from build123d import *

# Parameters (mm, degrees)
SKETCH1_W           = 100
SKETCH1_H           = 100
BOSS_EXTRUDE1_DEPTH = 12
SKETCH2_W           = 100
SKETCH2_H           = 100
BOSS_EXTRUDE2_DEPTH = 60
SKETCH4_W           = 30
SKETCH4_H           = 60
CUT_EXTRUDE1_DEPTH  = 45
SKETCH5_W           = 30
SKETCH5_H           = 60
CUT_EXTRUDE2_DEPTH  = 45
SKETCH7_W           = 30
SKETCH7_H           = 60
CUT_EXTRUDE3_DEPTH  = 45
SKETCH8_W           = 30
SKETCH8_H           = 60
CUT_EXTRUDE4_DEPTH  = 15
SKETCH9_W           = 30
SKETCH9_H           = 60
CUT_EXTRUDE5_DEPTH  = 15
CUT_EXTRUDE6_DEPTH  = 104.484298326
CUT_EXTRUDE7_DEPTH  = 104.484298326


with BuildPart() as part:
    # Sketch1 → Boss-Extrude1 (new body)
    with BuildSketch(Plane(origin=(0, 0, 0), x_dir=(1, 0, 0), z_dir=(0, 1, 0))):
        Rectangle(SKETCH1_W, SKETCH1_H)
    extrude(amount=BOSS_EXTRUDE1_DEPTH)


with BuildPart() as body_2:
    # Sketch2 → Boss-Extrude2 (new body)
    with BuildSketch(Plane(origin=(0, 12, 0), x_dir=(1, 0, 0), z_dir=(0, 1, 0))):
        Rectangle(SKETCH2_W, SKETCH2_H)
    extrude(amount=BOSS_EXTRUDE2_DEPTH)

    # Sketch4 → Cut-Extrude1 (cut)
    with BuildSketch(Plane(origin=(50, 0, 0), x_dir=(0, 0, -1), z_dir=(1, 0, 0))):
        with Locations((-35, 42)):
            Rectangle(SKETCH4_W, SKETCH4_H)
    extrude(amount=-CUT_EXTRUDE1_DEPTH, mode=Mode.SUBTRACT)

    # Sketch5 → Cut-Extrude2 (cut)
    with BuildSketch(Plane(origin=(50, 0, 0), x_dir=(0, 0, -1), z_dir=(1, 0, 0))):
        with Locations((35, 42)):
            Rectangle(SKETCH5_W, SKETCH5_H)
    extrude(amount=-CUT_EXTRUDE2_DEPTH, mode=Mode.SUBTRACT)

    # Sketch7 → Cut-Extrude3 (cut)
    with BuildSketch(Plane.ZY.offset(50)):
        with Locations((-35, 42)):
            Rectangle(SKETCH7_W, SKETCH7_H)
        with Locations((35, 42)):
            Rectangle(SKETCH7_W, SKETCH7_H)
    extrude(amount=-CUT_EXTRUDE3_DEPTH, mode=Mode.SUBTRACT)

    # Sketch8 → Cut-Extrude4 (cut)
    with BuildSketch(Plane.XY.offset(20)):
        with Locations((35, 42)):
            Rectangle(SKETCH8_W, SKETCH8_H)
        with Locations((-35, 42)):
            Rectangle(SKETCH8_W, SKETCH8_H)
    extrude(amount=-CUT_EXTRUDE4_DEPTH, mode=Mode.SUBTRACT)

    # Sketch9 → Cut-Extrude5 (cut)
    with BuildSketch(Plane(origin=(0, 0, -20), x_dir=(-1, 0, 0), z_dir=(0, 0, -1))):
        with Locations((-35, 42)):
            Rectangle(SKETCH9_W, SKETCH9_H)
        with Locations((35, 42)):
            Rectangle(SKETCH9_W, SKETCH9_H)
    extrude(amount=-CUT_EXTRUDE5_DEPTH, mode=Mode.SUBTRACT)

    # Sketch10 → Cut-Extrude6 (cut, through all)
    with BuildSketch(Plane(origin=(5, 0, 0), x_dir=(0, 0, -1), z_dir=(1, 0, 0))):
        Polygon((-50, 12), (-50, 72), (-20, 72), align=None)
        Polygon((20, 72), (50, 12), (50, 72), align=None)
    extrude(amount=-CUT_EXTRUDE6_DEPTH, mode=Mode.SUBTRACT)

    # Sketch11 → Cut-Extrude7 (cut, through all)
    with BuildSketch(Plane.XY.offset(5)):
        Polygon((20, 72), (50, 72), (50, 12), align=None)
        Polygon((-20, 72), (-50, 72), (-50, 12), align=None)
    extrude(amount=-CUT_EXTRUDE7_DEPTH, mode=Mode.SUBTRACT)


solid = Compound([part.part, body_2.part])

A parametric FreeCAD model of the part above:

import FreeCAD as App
import Part
import Sketcher
from FreeCAD import Vector
Q = App.Units.Quantity


def add_polygon(sketch, points):
    """Adds a closed chain of lines whose ends are joined by coincident constraints."""
    first, n = sketch.GeometryCount, len(points)
    for a, b in zip(points, points[1:] + points[:1]):
        sketch.addGeometry(Part.LineSegment(App.Vector(*a, 0), App.Vector(*b, 0)), False)
    for i in range(n):
        sketch.addConstraint(Sketcher.Constraint("Coincident", first + i, 2, first + (i + 1) % n, 1))

doc = App.newDocument("Part")
body = doc.addObject("PartDesign::Body", "Body")

sketch1 = doc.addObject("Sketcher::SketchObject", "Sketch")
body.addObject(sketch1)
sketch1.AttachmentSupport = (doc.XZ_Plane, [""])
sketch1.MapMode = "FlatFace"
add_polygon(sketch1, [(-50, -50), (-50, 50), (50, 50), (50, -50)])
sketch1.addConstraint(Sketcher.Constraint("Vertical", 0))
sketch1.addConstraint(Sketcher.Constraint("Horizontal", 1))
sketch1.addConstraint(Sketcher.Constraint("Vertical", 2))
sketch1.addConstraint(Sketcher.Constraint("Horizontal", 3))
sketch1.addConstraint(Sketcher.Constraint("Symmetric", 0, 2, 2, 2, -1, 1))
sketch1.addConstraint(Sketcher.Constraint("Equal", 3, 0))
sketch1.addConstraint(Sketcher.Constraint("DistanceX", 1, 1, 1, 2, Q("100 mm")))
pad1 = doc.addObject("PartDesign::Pad", "Pad")
body.addObject(pad1)
pad1.Profile = sketch1
pad1.Length = 12
pad1.Reversed = True
body2 = doc.addObject("PartDesign::Body", "Body001")

sketch2 = doc.addObject("Sketcher::SketchObject", "Sketch001")
body2.addObject(sketch2)
sketch2.AttachmentSupport = (doc.getObject("XZ_Plane001"), [""])
sketch2.MapMode = "FlatFace"
sketch2.AttachmentOffset = App.Placement(Vector(0, 0, -12), App.Rotation())
add_polygon(sketch2, [(-50, -50), (-50, 50), (50, 50), (50, -50)])
sketch2.addConstraint(Sketcher.Constraint("Vertical", 0))
sketch2.addConstraint(Sketcher.Constraint("Horizontal", 1))
sketch2.addConstraint(Sketcher.Constraint("Vertical", 2))
sketch2.addConstraint(Sketcher.Constraint("Horizontal", 3))
sketch2.addConstraint(Sketcher.Constraint("Symmetric", 0, 2, 2, 2, -1, 1))
sketch2.addConstraint(Sketcher.Constraint("Equal", 3, 0))
sketch2.addConstraint(Sketcher.Constraint("DistanceX", 1, 1, 1, 2, Q("100 mm")))
pad2 = doc.addObject("PartDesign::Pad", "Pad001")
body2.addObject(pad2)
pad2.Profile = sketch2
pad2.Length = 60
pad2.Reversed = True

sketch3 = doc.addObject("Sketcher::SketchObject", "Sketch002")
body2.addObject(sketch3)
sketch3.AttachmentSupport = (doc.getObject("YZ_Plane001"), [""])
sketch3.MapMode = "FlatFace"
sketch3.AttachmentOffset = App.Placement(Vector(0, 0, 50), App.Rotation())
add_polygon(sketch3, [(72, 50), (12, 50), (12, 20), (72, 20)])
sketch3.addConstraint(Sketcher.Constraint("Horizontal", 0))
sketch3.addConstraint(Sketcher.Constraint("Vertical", 1))
sketch3.addConstraint(Sketcher.Constraint("Horizontal", 2))
sketch3.addConstraint(Sketcher.Constraint("Vertical", 3))
sketch3.addConstraint(Sketcher.Constraint("DistanceX", 0, 2, 0, 1, Q("60 mm")))
sketch3.addConstraint(Sketcher.Constraint("DistanceY", 1, 2, 1, 1, Q("30 mm")))
sketch3.addConstraint(Sketcher.Constraint("DistanceX", -1, 1, 0, 2, Q("12 mm")))
sketch3.addConstraint(Sketcher.Constraint("DistanceY", -1, 1, 0, 2, Q("50 mm")))
pocket1 = doc.addObject("PartDesign::Pocket", "Pocket")
body2.addObject(pocket1)
pocket1.Profile = sketch3
pocket1.Length = 45

sketch4 = doc.addObject("Sketcher::SketchObject", "Sketch003")
body2.addObject(sketch4)
sketch4.AttachmentSupport = (doc.getObject("YZ_Plane001"), [""])
sketch4.MapMode = "FlatFace"
sketch4.AttachmentOffset = App.Placement(Vector(0, 0, 50), App.Rotation())
add_polygon(sketch4, [(72, -20), (12, -20), (12, -50), (72, -50)])
sketch4.addConstraint(Sketcher.Constraint("Horizontal", 0))
sketch4.addConstraint(Sketcher.Constraint("Vertical", 1))
sketch4.addConstraint(Sketcher.Constraint("Horizontal", 2))
sketch4.addConstraint(Sketcher.Constraint("Vertical", 3))
sketch4.addConstraint(Sketcher.Constraint("DistanceX", 0, 2, 0, 1, Q("60 mm")))
sketch4.addConstraint(Sketcher.Constraint("DistanceY", 1, 2, 1, 1, Q("30 mm")))
sketch4.addConstraint(Sketcher.Constraint("DistanceX", -1, 1, 0, 2, Q("12 mm")))
sketch4.addConstraint(Sketcher.Constraint("DistanceY", 0, 2, -1, 1, Q("20 mm")))
pocket2 = doc.addObject("PartDesign::Pocket", "Pocket001")
body2.addObject(pocket2)
pocket2.Profile = sketch4
pocket2.Length = 45

sketch5 = doc.addObject("Sketcher::SketchObject", "Sketch004")
body2.addObject(sketch5)
sketch5.AttachmentSupport = (doc.getObject("YZ_Plane001"), [""])
sketch5.MapMode = "FlatFace"
sketch5.AttachmentOffset = App.Placement(Vector(0, 0, -50), App.Rotation())
add_polygon(sketch5, [(72, -50), (12, -50), (12, -20), (72, -20)])
add_polygon(sketch5, [(72, 20), (12, 20), (12, 50), (72, 50)])
sketch5.addConstraint(Sketcher.Constraint("Horizontal", 0))
sketch5.addConstraint(Sketcher.Constraint("Vertical", 1))
sketch5.addConstraint(Sketcher.Constraint("Horizontal", 2))
sketch5.addConstraint(Sketcher.Constraint("Vertical", 3))
sketch5.addConstraint(Sketcher.Constraint("Horizontal", 4))
sketch5.addConstraint(Sketcher.Constraint("Vertical", 5))
sketch5.addConstraint(Sketcher.Constraint("Horizontal", 6))
sketch5.addConstraint(Sketcher.Constraint("Vertical", 7))
sketch5.addConstraint(Sketcher.Constraint("Symmetric", 1, 2, 4, 2, -1))
sketch5.addConstraint(Sketcher.Constraint("Symmetric", 3, 2, 6, 2, -1))
sketch5.addConstraint(Sketcher.Constraint("DistanceX", 0, 2, 0, 1, Q("60 mm")))
sketch5.addConstraint(Sketcher.Constraint("DistanceY", 1, 1, 1, 2, Q("30 mm")))
sketch5.addConstraint(Sketcher.Constraint("DistanceX", -1, 1, 0, 2, Q("12 mm")))
sketch5.addConstraint(Sketcher.Constraint("DistanceY", 0, 2, -1, 1, Q("50 mm")))
pocket3 = doc.addObject("PartDesign::Pocket", "Pocket002")
body2.addObject(pocket3)
pocket3.Profile = sketch5
pocket3.Length = 45
pocket3.Reversed = True

sketch6 = doc.addObject("Sketcher::SketchObject", "Sketch005")
body2.addObject(sketch6)
sketch6.AttachmentSupport = (doc.getObject("XY_Plane001"), [""])
sketch6.MapMode = "FlatFace"
sketch6.AttachmentOffset = App.Placement(Vector(0, 0, 20), App.Rotation())
add_polygon(sketch6, [(20, 72), (20, 12), (50, 12), (50, 72)])
add_polygon(sketch6, [(-50, 72), (-50, 12), (-20, 12), (-20, 72)])
sketch6.addConstraint(Sketcher.Constraint("Vertical", 0))
sketch6.addConstraint(Sketcher.Constraint("Horizontal", 1))
sketch6.addConstraint(Sketcher.Constraint("Vertical", 2))
sketch6.addConstraint(Sketcher.Constraint("Horizontal", 3))
sketch6.addConstraint(Sketcher.Constraint("Vertical", 4))
sketch6.addConstraint(Sketcher.Constraint("Horizontal", 5))
sketch6.addConstraint(Sketcher.Constraint("Vertical", 6))
sketch6.addConstraint(Sketcher.Constraint("Horizontal", 7))
sketch6.addConstraint(Sketcher.Constraint("Symmetric", 1, 2, 4, 2, -2))
sketch6.addConstraint(Sketcher.Constraint("Symmetric", 3, 2, 6, 2, -2))
sketch6.addConstraint(Sketcher.Constraint("DistanceX", 1, 1, 1, 2, Q("30 mm")))
sketch6.addConstraint(Sketcher.Constraint("DistanceY", 0, 2, 0, 1, Q("60 mm")))
sketch6.addConstraint(Sketcher.Constraint("DistanceX", -1, 1, 0, 2, Q("20 mm")))
sketch6.addConstraint(Sketcher.Constraint("DistanceY", -1, 1, 0, 2, Q("12 mm")))
pocket4 = doc.addObject("PartDesign::Pocket", "Pocket003")
body2.addObject(pocket4)
pocket4.Profile = sketch6
pocket4.Length = 15

sketch7 = doc.addObject("Sketcher::SketchObject", "Sketch006")
body2.addObject(sketch7)
sketch7.AttachmentSupport = (doc.getObject("XY_Plane001"), [""])
sketch7.MapMode = "FlatFace"
sketch7.AttachmentOffset = App.Placement(Vector(0, 0, -20), App.Rotation())
add_polygon(sketch7, [(50, 72), (50, 12), (20, 12), (20, 72)])
add_polygon(sketch7, [(-20, 72), (-20, 12), (-50, 12), (-50, 72)])
sketch7.addConstraint(Sketcher.Constraint("Vertical", 0))
sketch7.addConstraint(Sketcher.Constraint("Horizontal", 1))
sketch7.addConstraint(Sketcher.Constraint("Vertical", 2))
sketch7.addConstraint(Sketcher.Constraint("Horizontal", 3))
sketch7.addConstraint(Sketcher.Constraint("Vertical", 4))
sketch7.addConstraint(Sketcher.Constraint("Horizontal", 5))
sketch7.addConstraint(Sketcher.Constraint("Vertical", 6))
sketch7.addConstraint(Sketcher.Constraint("Horizontal", 7))
sketch7.addConstraint(Sketcher.Constraint("Symmetric", 1, 2, 4, 2, -2))
sketch7.addConstraint(Sketcher.Constraint("Symmetric", 3, 2, 6, 2, -2))
sketch7.addConstraint(Sketcher.Constraint("DistanceX", 1, 2, 1, 1, Q("30 mm")))
sketch7.addConstraint(Sketcher.Constraint("DistanceY", 0, 2, 0, 1, Q("60 mm")))
sketch7.addConstraint(Sketcher.Constraint("DistanceX", -1, 1, 0, 2, Q("50 mm")))
sketch7.addConstraint(Sketcher.Constraint("DistanceY", -1, 1, 0, 2, Q("12 mm")))
pocket5 = doc.addObject("PartDesign::Pocket", "Pocket004")
body2.addObject(pocket5)
pocket5.Profile = sketch7
pocket5.Length = 15
pocket5.Reversed = True

sketch8 = doc.addObject("Sketcher::SketchObject", "Sketch007")
body2.addObject(sketch8)
sketch8.AttachmentSupport = (doc.getObject("YZ_Plane001"), [""])
sketch8.MapMode = "FlatFace"
sketch8.AttachmentOffset = App.Placement(Vector(0, 0, 5), App.Rotation())
add_polygon(sketch8, [(72, 50), (12, 50), (72, 20)])
add_polygon(sketch8, [(72, -20), (12, -50), (72, -50)])
sketch8.addConstraint(Sketcher.Constraint("Horizontal", 0))
sketch8.addConstraint(Sketcher.Constraint("Vertical", 2))
sketch8.addConstraint(Sketcher.Constraint("Horizontal", 4))
sketch8.addConstraint(Sketcher.Constraint("Vertical", 5))
sketch8.addConstraint(Sketcher.Constraint("Symmetric", 0, 2, 3, 2, -1))
sketch8.addConstraint(Sketcher.Constraint("Symmetric", 1, 2, 5, 2, -1))
sketch8.addConstraint(Sketcher.Constraint("DistanceX", 0, 2, 0, 1, Q("60 mm")))
sketch8.addConstraint(Sketcher.Constraint("DistanceY", 2, 1, 2, 2, Q("30 mm")))
sketch8.addConstraint(Sketcher.Constraint("DistanceX", -1, 1, 0, 2, Q("12 mm")))
sketch8.addConstraint(Sketcher.Constraint("DistanceY", -1, 1, 0, 2, Q("50 mm")))
pocket6 = doc.addObject("PartDesign::Pocket", "Pocket005")
body2.addObject(pocket6)
pocket6.Profile = sketch8
pocket6.Type = "ThroughAll"

sketch9 = doc.addObject("Sketcher::SketchObject", "Sketch008")
body2.addObject(sketch9)
sketch9.AttachmentSupport = (doc.getObject("XY_Plane001"), [""])
sketch9.MapMode = "FlatFace"
sketch9.AttachmentOffset = App.Placement(Vector(0, 0, 5), App.Rotation())
add_polygon(sketch9, [(50, 72), (20, 72), (50, 12)])
add_polygon(sketch9, [(-20, 72), (-50, 72), (-50, 12)])
sketch9.addConstraint(Sketcher.Constraint("Horizontal", 0))
sketch9.addConstraint(Sketcher.Constraint("Vertical", 2))
sketch9.addConstraint(Sketcher.Constraint("Horizontal", 3))
sketch9.addConstraint(Sketcher.Constraint("Vertical", 4))
sketch9.addConstraint(Sketcher.Constraint("Symmetric", 2, 2, 3, 2, -2))
sketch9.addConstraint(Sketcher.Constraint("Horizontal", 1, 2, 4, 2))
sketch9.addConstraint(Sketcher.Constraint("Equal", 0, 3))
sketch9.addConstraint(Sketcher.Constraint("DistanceX", 0, 2, 0, 1, Q("30 mm")))
sketch9.addConstraint(Sketcher.Constraint("DistanceY", 2, 1, 2, 2, Q("60 mm")))
sketch9.addConstraint(Sketcher.Constraint("DistanceX", -1, 1, 0, 2, Q("20 mm")))
sketch9.addConstraint(Sketcher.Constraint("DistanceY", -1, 1, 0, 2, Q("72 mm")))
pocket7 = doc.addObject("PartDesign::Pocket", "Pocket006")
body2.addObject(pocket7)
pocket7.Profile = sketch9
pocket7.Type = "ThroughAll"

doc.recompute()
